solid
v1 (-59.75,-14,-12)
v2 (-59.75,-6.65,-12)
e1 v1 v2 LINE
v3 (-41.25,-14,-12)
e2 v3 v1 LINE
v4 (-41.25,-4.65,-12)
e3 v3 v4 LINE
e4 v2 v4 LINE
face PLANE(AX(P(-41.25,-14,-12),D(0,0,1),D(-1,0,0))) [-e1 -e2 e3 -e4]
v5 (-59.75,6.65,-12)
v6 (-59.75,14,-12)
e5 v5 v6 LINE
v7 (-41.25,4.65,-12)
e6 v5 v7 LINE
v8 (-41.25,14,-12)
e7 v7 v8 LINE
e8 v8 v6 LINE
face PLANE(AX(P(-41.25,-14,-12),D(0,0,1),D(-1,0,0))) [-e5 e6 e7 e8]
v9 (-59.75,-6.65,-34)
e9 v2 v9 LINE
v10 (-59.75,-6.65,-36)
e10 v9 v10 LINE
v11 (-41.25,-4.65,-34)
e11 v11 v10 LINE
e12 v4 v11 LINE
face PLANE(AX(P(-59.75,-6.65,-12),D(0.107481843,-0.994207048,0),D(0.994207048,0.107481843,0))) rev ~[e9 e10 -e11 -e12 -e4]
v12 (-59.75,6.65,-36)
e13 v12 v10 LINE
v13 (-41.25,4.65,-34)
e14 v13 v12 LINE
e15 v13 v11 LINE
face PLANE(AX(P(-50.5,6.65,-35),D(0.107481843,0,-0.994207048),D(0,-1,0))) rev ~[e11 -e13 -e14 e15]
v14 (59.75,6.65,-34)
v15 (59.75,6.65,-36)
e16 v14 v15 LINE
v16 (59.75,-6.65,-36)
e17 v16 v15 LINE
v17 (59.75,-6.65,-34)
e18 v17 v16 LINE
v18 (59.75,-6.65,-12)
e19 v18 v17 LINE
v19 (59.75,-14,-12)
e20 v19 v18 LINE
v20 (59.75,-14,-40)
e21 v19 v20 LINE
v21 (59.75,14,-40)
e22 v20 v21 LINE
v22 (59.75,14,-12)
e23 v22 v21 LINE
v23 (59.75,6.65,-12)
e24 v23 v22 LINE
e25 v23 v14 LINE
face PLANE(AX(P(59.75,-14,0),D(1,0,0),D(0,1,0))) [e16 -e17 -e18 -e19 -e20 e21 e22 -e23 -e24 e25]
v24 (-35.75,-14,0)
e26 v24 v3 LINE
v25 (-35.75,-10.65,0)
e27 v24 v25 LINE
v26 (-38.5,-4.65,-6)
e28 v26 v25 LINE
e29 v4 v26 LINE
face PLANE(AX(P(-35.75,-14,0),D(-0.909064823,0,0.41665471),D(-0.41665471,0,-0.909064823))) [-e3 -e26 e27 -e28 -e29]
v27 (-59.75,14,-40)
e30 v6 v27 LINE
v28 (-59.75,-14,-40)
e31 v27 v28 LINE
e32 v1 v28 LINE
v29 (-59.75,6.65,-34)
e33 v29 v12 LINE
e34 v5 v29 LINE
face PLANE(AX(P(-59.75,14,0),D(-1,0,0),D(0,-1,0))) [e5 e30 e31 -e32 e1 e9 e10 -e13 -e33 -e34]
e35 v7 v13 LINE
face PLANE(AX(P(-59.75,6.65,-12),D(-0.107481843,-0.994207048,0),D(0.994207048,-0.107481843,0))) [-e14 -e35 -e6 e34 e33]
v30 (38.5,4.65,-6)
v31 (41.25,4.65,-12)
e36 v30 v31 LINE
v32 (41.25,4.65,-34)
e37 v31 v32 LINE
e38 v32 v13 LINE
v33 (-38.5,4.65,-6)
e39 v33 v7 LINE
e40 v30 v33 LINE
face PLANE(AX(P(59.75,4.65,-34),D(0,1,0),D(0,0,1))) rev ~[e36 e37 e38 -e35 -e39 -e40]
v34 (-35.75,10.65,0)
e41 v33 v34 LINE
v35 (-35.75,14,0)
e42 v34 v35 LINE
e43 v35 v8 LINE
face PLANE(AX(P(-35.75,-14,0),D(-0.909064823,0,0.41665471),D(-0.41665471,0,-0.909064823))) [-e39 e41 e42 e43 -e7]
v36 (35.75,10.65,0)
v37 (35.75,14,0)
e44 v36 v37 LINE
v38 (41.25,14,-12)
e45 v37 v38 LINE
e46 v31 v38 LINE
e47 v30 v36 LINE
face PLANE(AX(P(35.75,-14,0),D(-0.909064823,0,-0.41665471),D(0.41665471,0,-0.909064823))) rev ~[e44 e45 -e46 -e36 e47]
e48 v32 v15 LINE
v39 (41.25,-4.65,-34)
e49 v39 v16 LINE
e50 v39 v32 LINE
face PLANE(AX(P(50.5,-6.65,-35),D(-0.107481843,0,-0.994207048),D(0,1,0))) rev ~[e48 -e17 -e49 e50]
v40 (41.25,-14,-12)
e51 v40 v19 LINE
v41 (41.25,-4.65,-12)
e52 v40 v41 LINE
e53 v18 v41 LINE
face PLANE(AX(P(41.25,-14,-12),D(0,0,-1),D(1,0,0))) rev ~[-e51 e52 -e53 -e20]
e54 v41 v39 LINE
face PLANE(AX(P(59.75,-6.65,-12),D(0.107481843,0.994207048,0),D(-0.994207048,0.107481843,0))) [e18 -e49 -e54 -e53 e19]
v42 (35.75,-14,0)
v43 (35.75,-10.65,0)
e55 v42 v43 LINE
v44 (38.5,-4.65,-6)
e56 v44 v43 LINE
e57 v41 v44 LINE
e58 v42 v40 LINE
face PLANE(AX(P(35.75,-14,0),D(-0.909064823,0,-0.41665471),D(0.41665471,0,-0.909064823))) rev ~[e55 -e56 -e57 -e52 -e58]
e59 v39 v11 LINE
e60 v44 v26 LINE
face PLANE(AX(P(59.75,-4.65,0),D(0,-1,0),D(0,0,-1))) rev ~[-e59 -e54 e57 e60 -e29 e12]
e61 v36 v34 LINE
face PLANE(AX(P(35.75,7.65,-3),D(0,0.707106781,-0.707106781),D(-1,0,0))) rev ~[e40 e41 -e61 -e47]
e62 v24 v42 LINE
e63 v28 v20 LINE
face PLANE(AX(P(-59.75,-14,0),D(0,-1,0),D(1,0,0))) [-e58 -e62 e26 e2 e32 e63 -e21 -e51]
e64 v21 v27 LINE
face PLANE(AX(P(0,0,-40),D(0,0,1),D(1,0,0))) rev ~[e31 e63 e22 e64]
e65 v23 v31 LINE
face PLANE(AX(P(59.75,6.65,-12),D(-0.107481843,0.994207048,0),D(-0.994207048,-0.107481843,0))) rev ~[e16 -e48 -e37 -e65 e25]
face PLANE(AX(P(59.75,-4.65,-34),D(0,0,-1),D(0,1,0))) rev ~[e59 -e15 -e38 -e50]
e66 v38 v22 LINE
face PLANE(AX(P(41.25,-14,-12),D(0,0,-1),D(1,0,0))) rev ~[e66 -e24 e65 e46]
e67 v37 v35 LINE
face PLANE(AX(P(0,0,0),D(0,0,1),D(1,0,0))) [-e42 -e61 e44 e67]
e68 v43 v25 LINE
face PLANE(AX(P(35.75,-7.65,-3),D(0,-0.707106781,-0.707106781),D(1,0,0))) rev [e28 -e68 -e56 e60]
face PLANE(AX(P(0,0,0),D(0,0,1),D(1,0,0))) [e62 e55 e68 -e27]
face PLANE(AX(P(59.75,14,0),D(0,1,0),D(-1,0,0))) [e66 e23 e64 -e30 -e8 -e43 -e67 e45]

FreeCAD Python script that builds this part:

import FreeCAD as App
import Part
import Sketcher
from FreeCAD import Vector


def edges_at(feature, points):
    """Names of the edges that pass closest to the given points."""
    edges = feature.Shape.Edges
    near = lambda p: min(range(len(edges)), key=lambda i: edges[i].distToShape(Part.Vertex(*p))[0])
    return sorted({f"Edge{near(p) + 1}" for p in points})


def add_polygon(sketch, points):
    """Adds a closed chain of lines whose ends are joined by coincident constraints."""
    first, n = sketch.GeometryCount, len(points)
    for a, b in zip(points, points[1:] + points[:1]):
        sketch.addGeometry(Part.LineSegment(App.Vector(*a, 0), App.Vector(*b, 0)), False)
    for i in range(n):
        sketch.addConstraint(Sketcher.Constraint("Coincident", first + i, 2, first + (i + 1) % n, 1))

doc = App.newDocument("Part")
params = doc.addObject("Spreadsheet::Sheet", "Params")
for row, (alias, value) in enumerate([
    ("sketch1_height", "28 mm"),
    ("sketch1_width", "119.5 mm"),
    ("pad1_length", "40 mm"),
    ("sketch2_height", "12 mm"),
    ("sketch2_width", "18.5 mm"),
    ("pocket1_length", "28 mm"),
    ("sketch3_height", "12 mm"),
    ("sketch3_width", "18.5 mm"),
    ("pocket2_length", "28 mm"),
    ("sketch4_height", "12 mm"),
    ("sketch4_width", "5.5 mm"),
    ("pocket3_length", "28 mm"),
    ("sketch5_height", "12 mm"),
    ("sketch5_width", "5.5 mm"),
    ("pocket4_length", "28 mm"),
    ("sketch6_height", "34 mm"),
    ("sketch6_width", "9.3 mm"),
    ("pocket5_length", "119.5 mm"),
    ("chamfer_size", "6 mm"),
    ("chamfer2_size", "6 mm"),
    ("sketch7_height", "2 mm"),
    ("sketch7_width", "18.5 mm"),
    ("pocket6_length", "22 mm"),
    ("sketch8_height", "2 mm"),
    ("sketch8_width", "18.5 mm"),
    ("pocket7_length", "22 mm"),
    ("sketch9_height", "2 mm"),
    ("sketch9_width", "18.5 mm"),
    ("pocket8_length", "22 mm"),
    ("sketch10_height", "2 mm"),
    ("sketch10_width", "18.5 mm"),
    ("pocket9_length", "22 mm"),
    ("chamfer3_size", "18.5 mm"),
    ("chamfer3_size2", "2 mm"),
    ("chamfer4_size", "18.5 mm"),
    ("chamfer4_size2", "2 mm"),
], start=1):
    params.set(f"A{row}", alias)
    params.set(f"B{row}", "=" + value)
    params.setAlias(f"B{row}", alias)

body = doc.addObject("PartDesign::Body", "Body")

sketch1 = doc.addObject("Sketcher::SketchObject", "Sketch")
body.addObject(sketch1)
sketch1.AttachmentSupport = (doc.XY_Plane, [""])
sketch1.MapMode = "FlatFace"
add_polygon(sketch1, [(-60, 14), (-60, -14), (60, -14), (60, 14)])
sketch1.addConstraint([
    Sketcher.Constraint("Vertical", 0),
    Sketcher.Constraint("Horizontal", 1),
    Sketcher.Constraint("Vertical", 2),
    Sketcher.Constraint("Horizontal", 3),
    Sketcher.Constraint("Symmetric", 0, 2, 2, 2, -1, 1),
    Sketcher.Constraint("DistanceY", 0, 2, 0, 1, 28.0),
    Sketcher.Constraint("DistanceX", 1, 1, 1, 2, 119.5),
])
sketch1.setExpression("Constraints[9]", "Params.sketch1_height")
sketch1.setExpression("Constraints[10]", "Params.sketch1_width")
pad1 = doc.addObject("PartDesign::Pad", "Pad")
body.addObject(pad1)
pad1.Profile = sketch1
pad1.setExpression("Length", "Params.pad1_length")
pad1.Reversed = True

sketch2 = doc.addObject("Sketcher::SketchObject", "Sketch001")
body.addObject(sketch2)
sketch2.AttachmentSupport = (doc.XZ_Plane, [""])
sketch2.MapMode = "FlatFace"
sketch2.AttachmentOffset = App.Placement(Vector(0, 0, 14), App.Rotation())
add_polygon(sketch2, [(-41, 0), (-60, 0), (-60, -12), (-41, -12)])
sketch2.addConstraint([
    Sketcher.Constraint("Horizontal", 0),
    Sketcher.Constraint("Vertical", 1),
    Sketcher.Constraint("Horizontal", 2),
    Sketcher.Constraint("Vertical", 3),
    Sketcher.Constraint("PointOnObject", 0, 2, -1),
    Sketcher.Constraint("DistanceY", 1, 2, 1, 1, 12.0),
    Sketcher.Constraint("DistanceX", 0, 2, 0, 1, 18.5),
    Sketcher.Constraint("DistanceX", 0, 2, -1, 1, 59.75),
])
sketch2.setExpression("Constraints[9]", "Params.sketch2_height")
sketch2.setExpression("Constraints[10]", "Params.sketch2_width")
pocket1 = doc.addObject("PartDesign::Pocket", "Pocket")
body.addObject(pocket1)
pocket1.Profile = sketch2
pocket1.setExpression("Length", "Params.pocket1_length")

sketch3 = doc.addObject("Sketcher::SketchObject", "Sketch002")
body.addObject(sketch3)
sketch3.AttachmentSupport = (doc.XZ_Plane, [""])
sketch3.MapMode = "FlatFace"
sketch3.AttachmentOffset = App.Placement(Vector(0, 0, 14), App.Rotation())
add_polygon(sketch3, [(60, -12), (60, 0), (41, 0), (41, -12)])
sketch3.addConstraint([
    Sketcher.Constraint("Vertical", 0),
    Sketcher.Constraint("Horizontal", 1),
    Sketcher.Constraint("Vertical", 2),
    Sketcher.Constraint("Horizontal", 3),
    Sketcher.Constraint("PointOnObject", 0, 2, -1),
    Sketcher.Constraint("DistanceY", 0, 1, 0, 2, 12.0),
    Sketcher.Constraint("DistanceX", 1, 2, 1, 1, 18.5),
    Sketcher.Constraint("DistanceX", -1, 1, 0, 2, 59.75),
])
sketch3.setExpression("Constraints[9]", "Params.sketch3_height")
sketch3.setExpression("Constraints[10]", "Params.sketch3_width")
pocket2 = doc.addObject("PartDesign::Pocket", "Pocket001")
body.addObject(pocket2)
pocket2.Profile = sketch3
pocket2.setExpression("Length", "Params.pocket2_length")

sketch4 = doc.addObject("Sketcher::SketchObject", "Sketch003")
body.addObject(sketch4)
sketch4.AttachmentSupport = (doc.XZ_Plane, [""])
sketch4.MapMode = "FlatFace"
sketch4.AttachmentOffset = App.Placement(Vector(0, 0, 14), App.Rotation())
add_polygon(sketch4, [(41, -12), (41, 0), (36, 0)])
sketch4.addConstraint([
    Sketcher.Constraint("Vertical", 0),
    Sketcher.Constraint("Horizontal", 1),
    Sketcher.Constraint("PointOnObject", 0, 2, -1),
    Sketcher.Constraint("DistanceY", 0, 1, 0, 2, 12.0),
    Sketcher.Constraint("DistanceX", 1, 2, 1, 1, 5.5),
    Sketcher.Constraint("DistanceX", -1, 1, 0, 2, 41.25),
])
sketch4.setExpression("Constraints[6]", "Params.sketch4_height")
sketch4.setExpression("Constraints[7]", "Params.sketch4_width")
pocket3 = doc.addObject("PartDesign::Pocket", "Pocket002")
body.addObject(pocket3)
pocket3.Profile = sketch4
pocket3.setExpression("Length", "Params.pocket3_length")

sketch5 = doc.addObject("Sketcher::SketchObject", "Sketch004")
body.addObject(sketch5)
sketch5.AttachmentSupport = (doc.XZ_Plane, [""])
sketch5.MapMode = "FlatFace"
sketch5.AttachmentOffset = App.Placement(Vector(0, 0, 14), App.Rotation())
add_polygon(sketch5, [(-36, 0), (-41, 0), (-41, -12)])
sketch5.addConstraint([
    Sketcher.Constraint("Horizontal", 0),
    Sketcher.Constraint("Vertical", 1),
    Sketcher.Constraint("PointOnObject", 0, 2, -1),
    Sketcher.Constraint("DistanceY", 1, 2, 1, 1, 12.0),
    Sketcher.Constraint("DistanceX", 0, 2, 0, 1, 5.5),
    Sketcher.Constraint("DistanceX", 0, 2, -1, 1, 41.25),
])
sketch5.setExpression("Constraints[6]", "Params.sketch5_height")
sketch5.setExpression("Constraints[7]", "Params.sketch5_width")
pocket4 = doc.addObject("PartDesign::Pocket", "Pocket003")
body.addObject(pocket4)
pocket4.Profile = sketch5
pocket4.setExpression("Length", "Params.pocket4_length")

sketch6 = doc.addObject("Sketcher::SketchObject", "Sketch005")
body.addObject(sketch6)
sketch6.AttachmentSupport = (doc.YZ_Plane, [""])
sketch6.MapMode = "FlatFace"
sketch6.AttachmentOffset = App.Placement(Vector(0, 0, 59.75), App.Rotation())
add_polygon(sketch6, [(5, 0), (-5, 0), (-5, -34), (5, -34)])
sketch6.addConstraint([
    Sketcher.Constraint("Horizontal", 0),
    Sketcher.Constraint("Vertical", 1),
    Sketcher.Constraint("Horizontal", 2),
    Sketcher.Constraint("Vertical", 3),
    Sketcher.Constraint("Symmetric", 0, 2, 3, 2, -1, 1),
    Sketcher.Constraint("DistanceY", 1, 2, 1, 1, 34.0),
    Sketcher.Constraint("DistanceX", 0, 2, 0, 1, 9.3),
])
sketch6.setExpression("Constraints[9]", "Params.sketch6_height")
sketch6.setExpression("Constraints[10]", "Params.sketch6_width")
pocket5 = doc.addObject("PartDesign::Pocket", "Pocket004")
body.addObject(pocket5)
pocket5.Profile = sketch6
pocket5.setExpression("Length", "Params.pocket5_length")
doc.recompute()

chamfer = doc.addObject("PartDesign::Chamfer", "Chamfer")
body.addObject(chamfer)
chamfer.Base = (pocket5, edges_at(pocket5, [(0, 4.65, 0)]))
chamfer.setExpression("Size", "Params.chamfer_size")
doc.recompute()

chamfer2 = doc.addObject("PartDesign::Chamfer", "Chamfer001")
body.addObject(chamfer2)
chamfer2.Base = (chamfer, edges_at(chamfer, [(0, -4.65, 0)]))
chamfer2.setExpression("Size", "Params.chamfer2_size")

sketch7 = doc.addObject("Sketcher::SketchObject", "Sketch006")
body.addObject(sketch7)
sketch7.AttachmentSupport = (doc.XY_Plane, [""])
sketch7.MapMode = "FlatFace"
sketch7.AttachmentOffset = App.Placement(Vector(0, 0, -12), App.Rotation())
add_polygon(sketch7, [(41.2, 4.7), (59.8, 4.7), (59.8, 6.7)])
sketch7.addConstraint([
    Sketcher.Constraint("Horizontal", 0),
    Sketcher.Constraint("Vertical", 1),
    Sketcher.Constraint("DistanceY", 1, 1, 1, 2, 2.0),
    Sketcher.Constraint("DistanceX", 0, 1, 0, 2, 18.5),
    Sketcher.Constraint("DistanceX", -1, 1, 0, 2, 59.75),
    Sketcher.Constraint("DistanceY", -1, 1, 0, 2, 4.65),
])
sketch7.setExpression("Constraints[5]", "Params.sketch7_height")
sketch7.setExpression("Constraints[6]", "Params.sketch7_width")
pocket6 = doc.addObject("PartDesign::Pocket", "Pocket005")
body.addObject(pocket6)
pocket6.Profile = sketch7
pocket6.setExpression("Length", "Params.pocket6_length")

sketch8 = doc.addObject("Sketcher::SketchObject", "Sketch007")
body.addObject(sketch8)
sketch8.AttachmentSupport = (doc.XY_Plane, [""])
sketch8.MapMode = "FlatFace"
sketch8.AttachmentOffset = App.Placement(Vector(0, 0, -12), App.Rotation())
add_polygon(sketch8, [(59.8, -6.7), (59.8, -4.7), (41.2, -4.7)])
sketch8.addConstraint([
    Sketcher.Constraint("Vertical", 0),
    Sketcher.Constraint("Horizontal", 1),
    Sketcher.Constraint("DistanceY", 0, 1, 0, 2, 2.0),
    Sketcher.Constraint("DistanceX", 1, 2, 1, 1, 18.5),
    Sketcher.Constraint("DistanceX", -1, 1, 0, 2, 59.75),
    Sketcher.Constraint("DistanceY", 0, 2, -1, 1, 4.65),
])
sketch8.setExpression("Constraints[5]", "Params.sketch8_height")
sketch8.setExpression("Constraints[6]", "Params.sketch8_width")
pocket7 = doc.addObject("PartDesign::Pocket", "Pocket006")
body.addObject(pocket7)
pocket7.Profile = sketch8
pocket7.setExpression("Length", "Params.pocket7_length")

sketch9 = doc.addObject("Sketcher::SketchObject", "Sketch008")
body.addObject(sketch9)
sketch9.AttachmentSupport = (doc.XY_Plane, [""])
sketch9.MapMode = "FlatFace"
sketch9.AttachmentOffset = App.Placement(Vector(0, 0, -12), App.Rotation())
add_polygon(sketch9, [(-41.2, -4.7), (-59.8, -4.7), (-59.8, -6.7)])
sketch9.addConstraint([
    Sketcher.Constraint("Horizontal", 0),
    Sketcher.Constraint("Vertical", 1),
    Sketcher.Constraint("DistanceY", 1, 2, 1, 1, 2.0),
    Sketcher.Constraint("DistanceX", 0, 2, 0, 1, 18.5),
    Sketcher.Constraint("DistanceX", 0, 2, -1, 1, 59.75),
    Sketcher.Constraint("DistanceY", 0, 2, -1, 1, 4.65),
])
sketch9.setExpression("Constraints[5]", "Params.sketch9_height")
sketch9.setExpression("Constraints[6]", "Params.sketch9_width")
pocket8 = doc.addObject("PartDesign::Pocket", "Pocket007")
body.addObject(pocket8)
pocket8.Profile = sketch9
pocket8.setExpression("Length", "Params.pocket8_length")

sketch10 = doc.addObject("Sketcher::SketchObject", "Sketch009")
body.addObject(sketch10)
sketch10.AttachmentSupport = (doc.XY_Plane, [""])
sketch10.MapMode = "FlatFace"
sketch10.AttachmentOffset = App.Placement(Vector(0, 0, -12), App.Rotation())
add_polygon(sketch10, [(-59.8, 6.7), (-59.8, 4.7), (-41.2, 4.7)])
sketch10.addConstraint([
    Sketcher.Constraint("Vertical", 0),
    Sketcher.Constraint("Horizontal", 1),
    Sketcher.Constraint("DistanceY", 0, 2, 0, 1, 2.0),
    Sketcher.Constraint("DistanceX", 1, 1, 1, 2, 18.5),
    Sketcher.Constraint("DistanceX", 0, 2, -1, 1, 59.75),
    Sketcher.Constraint("DistanceY", -1, 1, 0, 2, 4.65),
])
sketch10.setExpression("Constraints[5]", "Params.sketch10_height")
sketch10.setExpression("Constraints[6]", "Params.sketch10_width")
pocket9 = doc.addObject("PartDesign::Pocket", "Pocket008")
body.addObject(pocket9)
pocket9.Profile = sketch10
pocket9.setExpression("Length", "Params.pocket9_length")
doc.recompute()

chamfer3 = doc.addObject("PartDesign::Chamfer", "Chamfer002")
body.addObject(chamfer3)
chamfer3.Base = (pocket9, edges_at(pocket9, [(59.75, 0, -34)]))
chamfer3.ChamferType = "Two distances"
chamfer3.setExpression("Size", "Params.chamfer3_size")
chamfer3.setExpression("Size2", "Params.chamfer3_size2")
chamfer3.FlipDirection = True
doc.recompute()

chamfer4 = doc.addObject("PartDesign::Chamfer", "Chamfer003")
body.addObject(chamfer4)
chamfer4.Base = (chamfer3, edges_at(chamfer3, [(-59.75, 0, -34)]))
chamfer4.ChamferType = "Two distances"
chamfer4.setExpression("Size", "Params.chamfer4_size")
chamfer4.setExpression("Size2", "Params.chamfer4_size2")

doc.recompute()
